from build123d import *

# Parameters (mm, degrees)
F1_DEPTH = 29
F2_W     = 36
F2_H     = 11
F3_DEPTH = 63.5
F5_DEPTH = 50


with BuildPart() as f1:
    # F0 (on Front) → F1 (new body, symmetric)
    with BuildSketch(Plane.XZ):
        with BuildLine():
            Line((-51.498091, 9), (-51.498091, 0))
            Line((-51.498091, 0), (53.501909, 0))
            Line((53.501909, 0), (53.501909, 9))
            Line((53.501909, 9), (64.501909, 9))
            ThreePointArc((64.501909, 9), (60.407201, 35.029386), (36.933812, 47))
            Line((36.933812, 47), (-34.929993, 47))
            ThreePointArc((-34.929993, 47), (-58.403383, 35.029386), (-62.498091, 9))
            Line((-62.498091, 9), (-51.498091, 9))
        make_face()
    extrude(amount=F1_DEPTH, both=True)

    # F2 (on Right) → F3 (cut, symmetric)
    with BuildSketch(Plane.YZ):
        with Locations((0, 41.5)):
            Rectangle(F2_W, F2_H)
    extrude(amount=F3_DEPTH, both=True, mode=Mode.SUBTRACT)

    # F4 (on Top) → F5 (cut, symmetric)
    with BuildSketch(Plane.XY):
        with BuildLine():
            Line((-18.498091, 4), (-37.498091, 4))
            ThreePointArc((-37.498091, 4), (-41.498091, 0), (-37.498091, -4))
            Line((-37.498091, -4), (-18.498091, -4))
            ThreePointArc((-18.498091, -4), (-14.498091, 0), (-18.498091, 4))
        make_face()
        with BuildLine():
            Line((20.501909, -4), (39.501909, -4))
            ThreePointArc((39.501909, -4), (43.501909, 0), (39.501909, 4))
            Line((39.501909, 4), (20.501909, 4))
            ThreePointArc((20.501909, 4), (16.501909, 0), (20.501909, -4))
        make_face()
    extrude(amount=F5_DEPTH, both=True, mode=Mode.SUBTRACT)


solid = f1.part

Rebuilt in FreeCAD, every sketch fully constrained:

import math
import FreeCAD as App
import Part
import Sketcher
from FreeCAD import Vector

doc = App.newDocument("Part")
body = doc.addObject("PartDesign::Body", "Body")

sketch1 = body.newObject("Sketcher::SketchObject", "Sketch")
sketch1.AttachmentSupport = (doc.getObject("XZ_Plane"), [""])
sketch1.MapMode = "FlatFace"
sketch1.addGeometry([
    Part.LineSegment(Vector(-51, 9, 0), Vector(-51, 0, 0)),
    Part.LineSegment(Vector(-51, 0, 0), Vector(54, 0, 0)),
    Part.LineSegment(Vector(54, 0, 0), Vector(54, 9, 0)),
    Part.LineSegment(Vector(54, 9, 0), Vector(65, 9, 0)),
    Part.ArcOfCircle(Part.Circle(Vector(37, 18, 0), Vector(0, 0, 1), 29), math.radians(-18), math.radians(90)),
    Part.LineSegment(Vector(37, 47, 0), Vector(-35, 47, 0)),
    Part.ArcOfCircle(Part.Circle(Vector(-35, 18, 0), Vector(0, 0, 1), 29), math.radians(90), math.radians(198)),
    Part.LineSegment(Vector(-62, 9, 0), Vector(-51, 9, 0)),
], False)
sketch1.addConstraint([
    Sketcher.Constraint("Coincident", 0, 2, 1, 1),
    Sketcher.Constraint("Coincident", 1, 2, 2, 1),
    Sketcher.Constraint("Coincident", 2, 2, 3, 1),
    Sketcher.Constraint("Coincident", 3, 2, 4, 1),
    Sketcher.Constraint("Tangent", 4, 2, 5, 1),
    Sketcher.Constraint("Tangent", 5, 2, 6, 1),
    Sketcher.Constraint("Coincident", 6, 2, 7, 1),
    Sketcher.Constraint("Coincident", 7, 2, 0, 1),
    Sketcher.Constraint("Vertical", 0),
    Sketcher.Constraint("Horizontal", 1),
    Sketcher.Constraint("Vertical", 2),
    Sketcher.Constraint("Horizontal", 3),
    Sketcher.Constraint("Horizontal", 5),
    Sketcher.Constraint("Horizontal", 7),
    Sketcher.Constraint("Equal", 4, 6),
    Sketcher.Constraint("PointOnObject", 0, 2, -1),
    Sketcher.Constraint("Horizontal", 3, 2, 6, 2),
    Sketcher.Constraint("Equal", 3, 7),
    Sketcher.Constraint("Radius", 4, 29.0),
    Sketcher.Constraint("DistanceX", 1, 1, 1, 2, 105.0),
    Sketcher.Constraint("DistanceX", 3, 1, 3, 2, 11.0),
    Sketcher.Constraint("DistanceY", 0, 2, 0, 1, 9.0),
    Sketcher.Constraint("DistanceY", -1, 1, 4, 3, 18.0),
    Sketcher.Constraint("DistanceX", -1, 1, 4, 3, 36.933812),
])
pad1 = body.newObject("PartDesign::Pad", "Pad")
pad1.Profile = sketch1
pad1.Length = 58
pad1.Midplane = True

sketch2 = body.newObject("Sketcher::SketchObject", "Sketch001")
sketch2.AttachmentSupport = (doc.getObject("YZ_Plane"), [""])
sketch2.MapMode = "FlatFace"
sketch2.addGeometry([
    Part.LineSegment(Vector(-18, 47, 0), Vector(-18, 36, 0)),
    Part.LineSegment(Vector(-18, 36, 0), Vector(18, 36, 0)),
    Part.LineSegment(Vector(18, 36, 0), Vector(18, 47, 0)),
    Part.LineSegment(Vector(18, 47, 0), Vector(-18, 47, 0)),
], False)
sketch2.addConstraint([
    Sketcher.Constraint("Coincident", 0, 2, 1, 1),
    Sketcher.Constraint("Coincident", 1, 2, 2, 1),
    Sketcher.Constraint("Coincident", 2, 2, 3, 1),
    Sketcher.Constraint("Coincident", 3, 2, 0, 1),
    Sketcher.Constraint("Vertical", 0),
    Sketcher.Constraint("Horizontal", 1),
    Sketcher.Constraint("Vertical", 2),
    Sketcher.Constraint("Horizontal", 3),
    Sketcher.Constraint("DistanceX", 1, 1, 1, 2, 36.0),
    Sketcher.Constraint("DistanceY", 0, 2, 0, 1, 11.0),
    Sketcher.Constraint("DistanceX", 0, 2, -1, 1, 18.0),
    Sketcher.Constraint("DistanceY", -1, 1, 0, 2, 36.0),
])
pocket1 = body.newObject("PartDesign::Pocket", "Pocket")
pocket1.Profile = sketch2
pocket1.Length = 127
pocket1.Midplane = True

sketch3 = body.newObject("Sketcher::SketchObject", "Sketch002")
sketch3.AttachmentSupport = (doc.getObject("XY_Plane"), [""])
sketch3.MapMode = "FlatFace"
sketch3.addGeometry([
    Part.LineSegment(Vector(-18.5, 4, 0), Vector(-37.5, 4, 0)),
    Part.ArcOfCircle(Part.Circle(Vector(-37.5, 0, 0), Vector(0, 0, 1), 4), math.radians(90), math.radians(270)),
    Part.LineSegment(Vector(-37.5, -4, 0), Vector(-18.5, -4, 0)),
    Part.ArcOfCircle(Part.Circle(Vector(-18.5, 0, 0), Vector(0, 0, 1), 4), math.radians(-90), math.radians(90)),
    Part.LineSegment(Vector(20.5, -4, 0), Vector(39.5, -4, 0)),
    Part.ArcOfCircle(Part.Circle(Vector(39.5, 0, 0), Vector(0, 0, 1), 4), math.radians(-90), math.radians(90)),
    Part.LineSegment(Vector(39.5, 4, 0), Vector(20.5, 4, 0)),
    Part.ArcOfCircle(Part.Circle(Vector(20.5, 0, 0), Vector(0, 0, 1), 4), math.radians(90), math.radians(270)),
], False)
sketch3.addConstraint([
    Sketcher.Constraint("Tangent", 0, 2, 1, 1),
    Sketcher.Constraint("Tangent", 1, 2, 2, 1),
    Sketcher.Constraint("Tangent", 2, 2, 3, 1),
    Sketcher.Constraint("Tangent", 3, 2, 0, 1),
    Sketcher.Constraint("Tangent", 4, 2, 5, 1),
    Sketcher.Constraint("Tangent", 5, 2, 6, 1),
    Sketcher.Constraint("Tangent", 6, 2, 7, 1),
    Sketcher.Constraint("Tangent", 7, 2, 4, 1),
    Sketcher.Constraint("Horizontal", 0),
    Sketcher.Constraint("Horizontal", 2),
    Sketcher.Constraint("Horizontal", 4),
    Sketcher.Constraint("Horizontal", 6),
    Sketcher.Constraint("Equal", 3, 5),
    Sketcher.Constraint("PointOnObject", 1, 3, -1),
    Sketcher.Constraint("PointOnObject", 5, 3, -1),
    Sketcher.Constraint("Equal", 2, 4),
    Sketcher.Constraint("Radius", 1, 4.0),
    Sketcher.Constraint("DistanceX", 0, 2, 0, 1, 19.0),
    Sketcher.Constraint("DistanceX", 3, 3, 5, 3, 58.0),
    Sketcher.Constraint("DistanceX", 1, 3, -1, 1, 37.498091),
])
pocket2 = body.newObject("PartDesign::Pocket", "Pocket001")
pocket2.Profile = sketch3
pocket2.Length = 100
pocket2.Midplane = True

doc.recompute()
